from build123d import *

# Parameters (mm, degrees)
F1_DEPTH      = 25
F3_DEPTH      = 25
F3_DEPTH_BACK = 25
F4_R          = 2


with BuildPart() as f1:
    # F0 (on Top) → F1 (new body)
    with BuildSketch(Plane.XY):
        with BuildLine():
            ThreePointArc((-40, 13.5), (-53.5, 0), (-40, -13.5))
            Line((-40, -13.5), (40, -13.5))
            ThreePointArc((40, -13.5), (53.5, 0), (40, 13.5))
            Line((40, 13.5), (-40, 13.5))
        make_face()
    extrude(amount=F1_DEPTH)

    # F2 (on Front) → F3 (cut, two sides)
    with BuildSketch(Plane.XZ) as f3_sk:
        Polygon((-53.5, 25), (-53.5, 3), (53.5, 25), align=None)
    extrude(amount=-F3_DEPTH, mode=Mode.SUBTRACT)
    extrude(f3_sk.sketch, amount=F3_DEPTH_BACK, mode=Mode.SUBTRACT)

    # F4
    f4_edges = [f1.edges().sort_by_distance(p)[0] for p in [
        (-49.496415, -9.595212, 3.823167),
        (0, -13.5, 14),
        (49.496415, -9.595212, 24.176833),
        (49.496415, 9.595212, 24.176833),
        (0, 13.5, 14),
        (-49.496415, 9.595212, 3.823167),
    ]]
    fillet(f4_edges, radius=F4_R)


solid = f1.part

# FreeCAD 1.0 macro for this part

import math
import FreeCAD as App
import Part
import Sketcher

V = App.Vector


def edges_at(feature, points):
    """Names of the edges that pass closest to the given points."""
    edges = feature.Shape.Edges
    near = lambda p: min(range(len(edges)), key=lambda i: edges[i].distToShape(Part.Vertex(*p))[0])
    return sorted({f"Edge{near(p) + 1}" for p in points})

doc = App.newDocument("Part")
body = doc.addObject("PartDesign::Body", "Body")

# Sketch on XY plane
sketch1 = body.newObject("Sketcher::SketchObject", "Sketch")
sketch1.AttachmentSupport = (doc.getObject("XY_Plane"), [""])
sketch1.MapMode = "FlatFace"
sketch1.addGeometry([
    Part.ArcOfCircle(Part.Circle(V(-40, 0, 0), V(0, 0, 1), 14), math.radians(90), math.radians(270)),
    Part.LineSegment(V(-40, -14, 0), V(40, -14, 0)),
    Part.ArcOfCircle(Part.Circle(V(40, 0, 0), V(0, 0, 1), 14), math.radians(-90), math.radians(90)),
    Part.LineSegment(V(40, 14, 0), V(-40, 14, 0)),
], False)
sketch1.addConstraint([
    Sketcher.Constraint("Tangent", 0, 2, 1, 1),
    Sketcher.Constraint("Tangent", 1, 2, 2, 1),
    Sketcher.Constraint("Tangent", 2, 2, 3, 1),
    Sketcher.Constraint("Tangent", 3, 2, 0, 1),
    Sketcher.Constraint("Horizontal", 1),
    Sketcher.Constraint("Horizontal", 3),
    Sketcher.Constraint("Symmetric", 0, 3, 2, 3, -1, 1),
    Sketcher.Constraint("Radius", 0, 13.5),
    Sketcher.Constraint("DistanceX", 1, 1, 1, 2, 80.0),
])
pad1 = body.newObject("PartDesign::Pad", "Pad")
pad1.Profile = sketch1
pad1.Length = 25

# Sketch on XZ plane
sketch2 = body.newObject("Sketcher::SketchObject", "Sketch001")
sketch2.AttachmentSupport = (doc.getObject("XZ_Plane"), [""])
sketch2.MapMode = "FlatFace"
sketch2.addGeometry([
    Part.LineSegment(V(-54, 25, 0), V(-54, 3, 0)),
    Part.LineSegment(V(-54, 3, 0), V(54, 25, 0)),
    Part.LineSegment(V(54, 25, 0), V(-54, 25, 0)),
], False)
sketch2.addConstraint([
    Sketcher.Constraint("Coincident", 0, 2, 1, 1),
    Sketcher.Constraint("Coincident", 1, 2, 2, 1),
    Sketcher.Constraint("Coincident", 2, 2, 0, 1),
    Sketcher.Constraint("Vertical", 0),
    Sketcher.Constraint("Horizontal", 2),
    Sketcher.Constraint("DistanceX", 2, 2, 2, 1, 107.0),
    Sketcher.Constraint("DistanceY", 0, 2, 0, 1, 22.0),
    Sketcher.Constraint("DistanceY", -1, 1, 0, 2, 3.0),
    Sketcher.Constraint("DistanceX", 0, 2, -1, 1, 53.5),
])
pocket1 = body.newObject("PartDesign::Pocket", "Pocket")
pocket1.Profile = sketch2
pocket1.Type = "ThroughAll"
pocket1.Midplane = True
doc.recompute()

fillet = body.newObject("PartDesign::Fillet", "Fillet")
fillet.Base = (pocket1, edges_at(pocket1, [
    (-49.496, -9.595, 3.823),
    (0, -13.5, 14),
    (49.496, -9.595, 24.177),
    (49.496, 9.595, 24.177),
    (0, 13.5, 14),
    (-49.496, 9.595, 3.823),
]))
fillet.Radius = 2

doc.recompute()
